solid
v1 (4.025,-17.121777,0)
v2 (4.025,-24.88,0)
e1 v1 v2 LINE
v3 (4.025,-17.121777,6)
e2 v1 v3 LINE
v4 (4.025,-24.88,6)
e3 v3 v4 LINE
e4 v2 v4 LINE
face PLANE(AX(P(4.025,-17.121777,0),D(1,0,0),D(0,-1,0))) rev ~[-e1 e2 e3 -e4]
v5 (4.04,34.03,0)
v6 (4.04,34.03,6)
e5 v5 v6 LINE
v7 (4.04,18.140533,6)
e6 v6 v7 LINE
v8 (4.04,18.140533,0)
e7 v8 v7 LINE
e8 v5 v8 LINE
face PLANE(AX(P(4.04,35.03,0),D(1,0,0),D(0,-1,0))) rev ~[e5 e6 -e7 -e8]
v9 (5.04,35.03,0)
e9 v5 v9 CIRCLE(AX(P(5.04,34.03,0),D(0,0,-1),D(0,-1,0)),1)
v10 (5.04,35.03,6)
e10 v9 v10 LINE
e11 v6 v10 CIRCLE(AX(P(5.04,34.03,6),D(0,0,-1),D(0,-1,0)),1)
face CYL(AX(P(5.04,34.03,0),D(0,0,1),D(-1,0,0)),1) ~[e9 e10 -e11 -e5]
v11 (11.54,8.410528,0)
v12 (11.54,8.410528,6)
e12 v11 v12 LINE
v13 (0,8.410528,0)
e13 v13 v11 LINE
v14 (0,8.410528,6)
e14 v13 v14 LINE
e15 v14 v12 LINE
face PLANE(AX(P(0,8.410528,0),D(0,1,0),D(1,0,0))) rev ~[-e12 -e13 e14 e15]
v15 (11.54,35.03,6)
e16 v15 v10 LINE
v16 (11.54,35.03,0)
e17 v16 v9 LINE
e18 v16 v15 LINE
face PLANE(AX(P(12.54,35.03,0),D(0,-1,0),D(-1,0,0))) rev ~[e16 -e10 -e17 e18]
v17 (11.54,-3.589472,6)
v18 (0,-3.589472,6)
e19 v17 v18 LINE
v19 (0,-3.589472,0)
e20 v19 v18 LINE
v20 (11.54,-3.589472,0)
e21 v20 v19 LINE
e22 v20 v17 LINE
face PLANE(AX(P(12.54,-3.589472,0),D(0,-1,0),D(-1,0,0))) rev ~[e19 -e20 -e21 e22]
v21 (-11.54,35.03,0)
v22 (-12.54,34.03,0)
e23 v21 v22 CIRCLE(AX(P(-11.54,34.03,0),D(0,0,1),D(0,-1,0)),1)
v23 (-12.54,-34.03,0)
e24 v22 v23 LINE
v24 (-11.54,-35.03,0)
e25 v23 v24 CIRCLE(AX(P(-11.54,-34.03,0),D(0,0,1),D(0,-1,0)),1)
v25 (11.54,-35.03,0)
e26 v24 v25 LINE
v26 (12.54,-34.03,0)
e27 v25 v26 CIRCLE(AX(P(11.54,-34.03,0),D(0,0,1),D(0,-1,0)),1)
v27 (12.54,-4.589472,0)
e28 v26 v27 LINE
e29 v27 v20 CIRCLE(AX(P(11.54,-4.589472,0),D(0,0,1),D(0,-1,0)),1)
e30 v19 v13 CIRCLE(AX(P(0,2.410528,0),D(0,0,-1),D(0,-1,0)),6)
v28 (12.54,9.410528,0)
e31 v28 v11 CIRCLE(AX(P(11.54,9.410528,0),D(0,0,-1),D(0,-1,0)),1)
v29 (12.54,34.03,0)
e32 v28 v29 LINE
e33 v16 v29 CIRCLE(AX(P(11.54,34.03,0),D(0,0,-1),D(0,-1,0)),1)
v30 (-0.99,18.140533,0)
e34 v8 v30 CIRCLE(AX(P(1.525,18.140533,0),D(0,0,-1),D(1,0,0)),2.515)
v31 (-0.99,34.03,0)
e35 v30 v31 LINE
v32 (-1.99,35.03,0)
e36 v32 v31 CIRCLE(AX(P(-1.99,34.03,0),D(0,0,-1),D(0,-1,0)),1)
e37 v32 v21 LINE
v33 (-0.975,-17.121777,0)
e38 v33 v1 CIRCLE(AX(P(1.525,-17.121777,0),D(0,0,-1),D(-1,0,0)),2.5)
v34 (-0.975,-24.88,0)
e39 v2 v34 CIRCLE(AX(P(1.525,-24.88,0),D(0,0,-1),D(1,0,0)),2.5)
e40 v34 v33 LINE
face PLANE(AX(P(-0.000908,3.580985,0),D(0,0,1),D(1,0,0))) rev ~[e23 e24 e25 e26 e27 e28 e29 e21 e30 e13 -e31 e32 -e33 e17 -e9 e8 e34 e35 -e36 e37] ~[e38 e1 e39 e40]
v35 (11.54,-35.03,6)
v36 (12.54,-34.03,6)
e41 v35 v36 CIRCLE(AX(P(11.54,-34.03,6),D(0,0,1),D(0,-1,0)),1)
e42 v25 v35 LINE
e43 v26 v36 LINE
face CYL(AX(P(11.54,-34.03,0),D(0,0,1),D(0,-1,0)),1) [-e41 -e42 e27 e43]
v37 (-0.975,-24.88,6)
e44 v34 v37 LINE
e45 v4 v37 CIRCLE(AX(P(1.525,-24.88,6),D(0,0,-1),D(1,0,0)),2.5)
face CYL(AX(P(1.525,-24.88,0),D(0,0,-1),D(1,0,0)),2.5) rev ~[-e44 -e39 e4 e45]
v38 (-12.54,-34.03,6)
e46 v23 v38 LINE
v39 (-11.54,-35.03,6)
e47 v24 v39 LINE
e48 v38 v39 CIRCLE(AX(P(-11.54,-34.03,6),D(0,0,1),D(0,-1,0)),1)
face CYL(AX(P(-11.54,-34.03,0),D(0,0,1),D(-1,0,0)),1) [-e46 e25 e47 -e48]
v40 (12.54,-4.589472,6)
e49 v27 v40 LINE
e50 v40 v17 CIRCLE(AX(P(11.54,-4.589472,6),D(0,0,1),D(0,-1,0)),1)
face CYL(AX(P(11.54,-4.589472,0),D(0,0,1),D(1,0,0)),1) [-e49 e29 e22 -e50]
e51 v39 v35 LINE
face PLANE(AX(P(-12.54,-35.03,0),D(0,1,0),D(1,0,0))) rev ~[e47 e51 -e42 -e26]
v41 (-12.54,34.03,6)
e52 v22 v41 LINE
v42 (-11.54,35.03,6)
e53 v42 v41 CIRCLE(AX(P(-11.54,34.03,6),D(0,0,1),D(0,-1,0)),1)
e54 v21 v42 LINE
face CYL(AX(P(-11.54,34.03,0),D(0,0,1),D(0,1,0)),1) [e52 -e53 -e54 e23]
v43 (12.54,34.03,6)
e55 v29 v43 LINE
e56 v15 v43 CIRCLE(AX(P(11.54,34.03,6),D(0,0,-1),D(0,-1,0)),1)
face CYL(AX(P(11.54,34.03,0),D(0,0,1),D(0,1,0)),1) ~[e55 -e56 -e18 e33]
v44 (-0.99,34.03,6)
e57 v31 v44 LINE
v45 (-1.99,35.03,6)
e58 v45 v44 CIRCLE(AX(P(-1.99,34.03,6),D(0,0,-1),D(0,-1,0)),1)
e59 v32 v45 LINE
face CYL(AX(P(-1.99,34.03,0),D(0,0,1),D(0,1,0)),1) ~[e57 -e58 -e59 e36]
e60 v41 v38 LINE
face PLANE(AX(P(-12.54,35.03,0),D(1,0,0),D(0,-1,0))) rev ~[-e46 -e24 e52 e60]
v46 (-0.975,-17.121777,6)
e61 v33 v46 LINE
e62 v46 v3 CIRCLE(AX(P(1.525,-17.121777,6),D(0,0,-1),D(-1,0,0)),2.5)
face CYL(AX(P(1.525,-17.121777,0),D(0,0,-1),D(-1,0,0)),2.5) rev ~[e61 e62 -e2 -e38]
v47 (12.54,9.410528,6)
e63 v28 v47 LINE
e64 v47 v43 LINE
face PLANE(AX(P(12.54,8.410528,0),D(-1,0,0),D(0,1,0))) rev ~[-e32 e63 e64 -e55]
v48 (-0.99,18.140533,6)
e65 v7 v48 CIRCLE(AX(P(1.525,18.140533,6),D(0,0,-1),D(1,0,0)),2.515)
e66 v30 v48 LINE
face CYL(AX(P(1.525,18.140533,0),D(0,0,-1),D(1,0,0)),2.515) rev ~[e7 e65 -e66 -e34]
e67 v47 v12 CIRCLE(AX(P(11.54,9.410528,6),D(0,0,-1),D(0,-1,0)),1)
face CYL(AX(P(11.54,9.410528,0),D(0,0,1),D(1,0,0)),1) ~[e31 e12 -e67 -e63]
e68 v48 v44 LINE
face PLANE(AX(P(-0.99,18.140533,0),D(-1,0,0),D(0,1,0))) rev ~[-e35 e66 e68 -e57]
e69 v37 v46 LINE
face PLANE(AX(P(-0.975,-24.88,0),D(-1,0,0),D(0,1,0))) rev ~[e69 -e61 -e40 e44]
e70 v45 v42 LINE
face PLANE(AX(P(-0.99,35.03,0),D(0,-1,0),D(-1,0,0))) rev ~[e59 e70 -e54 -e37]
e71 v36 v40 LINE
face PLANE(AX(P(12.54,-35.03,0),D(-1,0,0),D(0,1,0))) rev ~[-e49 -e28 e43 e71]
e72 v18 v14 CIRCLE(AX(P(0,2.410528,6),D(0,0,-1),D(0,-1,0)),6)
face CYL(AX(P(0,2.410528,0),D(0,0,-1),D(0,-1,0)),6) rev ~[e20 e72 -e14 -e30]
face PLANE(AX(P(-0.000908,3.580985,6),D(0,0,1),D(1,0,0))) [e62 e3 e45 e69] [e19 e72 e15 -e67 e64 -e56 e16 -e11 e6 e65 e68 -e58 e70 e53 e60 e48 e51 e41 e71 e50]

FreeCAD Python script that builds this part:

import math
import FreeCAD as App
import Part
import Sketcher

V = App.Vector
Q = App.Units.Quantity


def edges_at(feature, points):
    """Names of the edges that pass closest to the given points."""
    edges = feature.Shape.Edges
    near = lambda p: min(range(len(edges)), key=lambda i: edges[i].distToShape(Part.Vertex(*p))[0])
    return sorted({f"Edge{near(p) + 1}" for p in points})

doc = App.newDocument("Part")
body = doc.addObject("PartDesign::Body", "Body")

sketch1 = doc.addObject("Sketcher::SketchObject", "Sketch")
body.addObject(sketch1)
sketch1.AttachmentSupport = (doc.XY_Plane, [""])
sketch1.MapMode = "FlatFace"
sketch1.addGeometry([
    Part.LineSegment(V(-1, 35, 0), V(-12.5, 35, 0)),
    Part.LineSegment(V(-12.5, 35, 0), V(-12.5, -35, 0)),
    Part.LineSegment(V(-12.5, -35, 0), V(12.5, -35, 0)),
    Part.LineSegment(V(12.5, -35, 0), V(12.5, -3.6, 0)),
    Part.LineSegment(V(12.5, -3.6, 0), V(0, -3.6, 0)),
    Part.ArcOfCircle(Part.Circle(V(0, 2.4, 0), V(0, 0, 1), 6), math.radians(90), math.radians(270)),
    Part.LineSegment(V(0, 8.4, 0), V(12.5, 8.4, 0)),
    Part.LineSegment(V(12.5, 8.4, 0), V(12.5, 35, 0)),
    Part.LineSegment(V(12.5, 35, 0), V(4, 35, 0)),
    Part.LineSegment(V(4, 35, 0), V(4, 18.1, 0)),
    Part.ArcOfCircle(Part.Circle(V(1.5, 18.1, 0), V(0, 0, 1), 2.5), math.radians(180), math.radians(360)),
    Part.LineSegment(V(-1, 18.1, 0), V(-1, 35, 0)),
    Part.ArcOfCircle(Part.Circle(V(1.5, -17.1, 0), V(0, 0, 1), 2.5), math.radians(0), math.radians(180)),
    Part.LineSegment(V(4, -17.1, 0), V(4, -24.9, 0)),
    Part.ArcOfCircle(Part.Circle(V(1.5, -24.9, 0), V(0, 0, 1), 2.5), math.radians(180), math.radians(360)),
    Part.LineSegment(V(-1, -24.9, 0), V(-1, -17.1, 0)),
], False)
sketch1.addConstraint([
    Sketcher.Constraint("Coincident", 0, 2, 1, 1),
    Sketcher.Constraint("Coincident", 1, 2, 2, 1),
    Sketcher.Constraint("Coincident", 2, 2, 3, 1),
    Sketcher.Constraint("Coincident", 3, 2, 4, 1),
    Sketcher.Constraint("Tangent", 4, 2, 5, 2),
    Sketcher.Constraint("Tangent", 5, 1, 6, 1),
    Sketcher.Constraint("Coincident", 6, 2, 7, 1),
    Sketcher.Constraint("Coincident", 7, 2, 8, 1),
    Sketcher.Constraint("Coincident", 8, 2, 9, 1),
    Sketcher.Constraint("Tangent", 9, 2, 10, 2),
    Sketcher.Constraint("Tangent", 10, 1, 11, 1),
    Sketcher.Constraint("Coincident", 11, 2, 0, 1),
    Sketcher.Constraint("Tangent", 12, 1, 13, 1),
    Sketcher.Constraint("Tangent", 13, 2, 14, 2),
    Sketcher.Constraint("Tangent", 14, 1, 15, 1),
    Sketcher.Constraint("Tangent", 15, 2, 12, 2),
    Sketcher.Constraint("Horizontal", 0),
    Sketcher.Constraint("Vertical", 1),
    Sketcher.Constraint("Horizontal", 2),
    Sketcher.Constraint("Vertical", 3),
    Sketcher.Constraint("Horizontal", 4),
    Sketcher.Constraint("Horizontal", 6),
    Sketcher.Constraint("Vertical", 7),
    Sketcher.Constraint("Horizontal", 8),
    Sketcher.Constraint("Vertical", 9),
    Sketcher.Constraint("Vertical", 11),
    Sketcher.Constraint("Vertical", 13),
    Sketcher.Constraint("Vertical", 15),
    Sketcher.Constraint("Symmetric", 0, 2, 2, 2, -1, 1),
    Sketcher.Constraint("Symmetric", 1, 2, 7, 2, -1, 1),
    Sketcher.Constraint("PointOnObject", 5, 3, -2),
    Sketcher.Constraint("Vertical", 10, 3, 12, 3),
    Sketcher.Constraint("Radius", 5, Q("6 mm")),
    Sketcher.Constraint("Radius", 12, Q("2.5 mm")),
    Sketcher.Constraint("DistanceX", 8, 2, 8, 1, Q("8.5 mm")),
    Sketcher.Constraint("Radius", 10, Q("2.515 mm")),
    Sketcher.Constraint("DistanceX", 0, 2, 0, 1, Q("11.55 mm")),
    Sketcher.Constraint("DistanceY", 1, 2, 1, 1, Q("70.06 mm")),
    Sketcher.Constraint("DistanceY", 14, 3, -1, 1, Q("24.88 mm")),
    Sketcher.Constraint("DistanceY", 3, 1, 3, 2, Q("31.440528 mm")),
    Sketcher.Constraint("DistanceY", 9, 2, 9, 1, Q("16.889467 mm")),
    Sketcher.Constraint("DistanceY", 13, 2, 13, 1, Q("7.758223 mm")),
])
pad1 = doc.addObject("PartDesign::Pad", "Pad")
body.addObject(pad1)
pad1.Profile = sketch1
pad1.Length = 6
doc.recompute()

fillet = doc.addObject("PartDesign::Fillet", "Fillet")
body.addObject(fillet)
fillet.Base = (pad1, edges_at(pad1, [
    (-12.54, -35.03, 3),
    (-12.54, 35.03, 3),
    (12.54, -35.03, 3),
    (12.54, 35.03, 3),
    (12.54, -3.589, 3),
    (12.54, 8.411, 3),
    (-0.99, 35.03, 3),
    (4.04, 35.03, 3),
]))
fillet.Radius = 1

doc.recompute()
